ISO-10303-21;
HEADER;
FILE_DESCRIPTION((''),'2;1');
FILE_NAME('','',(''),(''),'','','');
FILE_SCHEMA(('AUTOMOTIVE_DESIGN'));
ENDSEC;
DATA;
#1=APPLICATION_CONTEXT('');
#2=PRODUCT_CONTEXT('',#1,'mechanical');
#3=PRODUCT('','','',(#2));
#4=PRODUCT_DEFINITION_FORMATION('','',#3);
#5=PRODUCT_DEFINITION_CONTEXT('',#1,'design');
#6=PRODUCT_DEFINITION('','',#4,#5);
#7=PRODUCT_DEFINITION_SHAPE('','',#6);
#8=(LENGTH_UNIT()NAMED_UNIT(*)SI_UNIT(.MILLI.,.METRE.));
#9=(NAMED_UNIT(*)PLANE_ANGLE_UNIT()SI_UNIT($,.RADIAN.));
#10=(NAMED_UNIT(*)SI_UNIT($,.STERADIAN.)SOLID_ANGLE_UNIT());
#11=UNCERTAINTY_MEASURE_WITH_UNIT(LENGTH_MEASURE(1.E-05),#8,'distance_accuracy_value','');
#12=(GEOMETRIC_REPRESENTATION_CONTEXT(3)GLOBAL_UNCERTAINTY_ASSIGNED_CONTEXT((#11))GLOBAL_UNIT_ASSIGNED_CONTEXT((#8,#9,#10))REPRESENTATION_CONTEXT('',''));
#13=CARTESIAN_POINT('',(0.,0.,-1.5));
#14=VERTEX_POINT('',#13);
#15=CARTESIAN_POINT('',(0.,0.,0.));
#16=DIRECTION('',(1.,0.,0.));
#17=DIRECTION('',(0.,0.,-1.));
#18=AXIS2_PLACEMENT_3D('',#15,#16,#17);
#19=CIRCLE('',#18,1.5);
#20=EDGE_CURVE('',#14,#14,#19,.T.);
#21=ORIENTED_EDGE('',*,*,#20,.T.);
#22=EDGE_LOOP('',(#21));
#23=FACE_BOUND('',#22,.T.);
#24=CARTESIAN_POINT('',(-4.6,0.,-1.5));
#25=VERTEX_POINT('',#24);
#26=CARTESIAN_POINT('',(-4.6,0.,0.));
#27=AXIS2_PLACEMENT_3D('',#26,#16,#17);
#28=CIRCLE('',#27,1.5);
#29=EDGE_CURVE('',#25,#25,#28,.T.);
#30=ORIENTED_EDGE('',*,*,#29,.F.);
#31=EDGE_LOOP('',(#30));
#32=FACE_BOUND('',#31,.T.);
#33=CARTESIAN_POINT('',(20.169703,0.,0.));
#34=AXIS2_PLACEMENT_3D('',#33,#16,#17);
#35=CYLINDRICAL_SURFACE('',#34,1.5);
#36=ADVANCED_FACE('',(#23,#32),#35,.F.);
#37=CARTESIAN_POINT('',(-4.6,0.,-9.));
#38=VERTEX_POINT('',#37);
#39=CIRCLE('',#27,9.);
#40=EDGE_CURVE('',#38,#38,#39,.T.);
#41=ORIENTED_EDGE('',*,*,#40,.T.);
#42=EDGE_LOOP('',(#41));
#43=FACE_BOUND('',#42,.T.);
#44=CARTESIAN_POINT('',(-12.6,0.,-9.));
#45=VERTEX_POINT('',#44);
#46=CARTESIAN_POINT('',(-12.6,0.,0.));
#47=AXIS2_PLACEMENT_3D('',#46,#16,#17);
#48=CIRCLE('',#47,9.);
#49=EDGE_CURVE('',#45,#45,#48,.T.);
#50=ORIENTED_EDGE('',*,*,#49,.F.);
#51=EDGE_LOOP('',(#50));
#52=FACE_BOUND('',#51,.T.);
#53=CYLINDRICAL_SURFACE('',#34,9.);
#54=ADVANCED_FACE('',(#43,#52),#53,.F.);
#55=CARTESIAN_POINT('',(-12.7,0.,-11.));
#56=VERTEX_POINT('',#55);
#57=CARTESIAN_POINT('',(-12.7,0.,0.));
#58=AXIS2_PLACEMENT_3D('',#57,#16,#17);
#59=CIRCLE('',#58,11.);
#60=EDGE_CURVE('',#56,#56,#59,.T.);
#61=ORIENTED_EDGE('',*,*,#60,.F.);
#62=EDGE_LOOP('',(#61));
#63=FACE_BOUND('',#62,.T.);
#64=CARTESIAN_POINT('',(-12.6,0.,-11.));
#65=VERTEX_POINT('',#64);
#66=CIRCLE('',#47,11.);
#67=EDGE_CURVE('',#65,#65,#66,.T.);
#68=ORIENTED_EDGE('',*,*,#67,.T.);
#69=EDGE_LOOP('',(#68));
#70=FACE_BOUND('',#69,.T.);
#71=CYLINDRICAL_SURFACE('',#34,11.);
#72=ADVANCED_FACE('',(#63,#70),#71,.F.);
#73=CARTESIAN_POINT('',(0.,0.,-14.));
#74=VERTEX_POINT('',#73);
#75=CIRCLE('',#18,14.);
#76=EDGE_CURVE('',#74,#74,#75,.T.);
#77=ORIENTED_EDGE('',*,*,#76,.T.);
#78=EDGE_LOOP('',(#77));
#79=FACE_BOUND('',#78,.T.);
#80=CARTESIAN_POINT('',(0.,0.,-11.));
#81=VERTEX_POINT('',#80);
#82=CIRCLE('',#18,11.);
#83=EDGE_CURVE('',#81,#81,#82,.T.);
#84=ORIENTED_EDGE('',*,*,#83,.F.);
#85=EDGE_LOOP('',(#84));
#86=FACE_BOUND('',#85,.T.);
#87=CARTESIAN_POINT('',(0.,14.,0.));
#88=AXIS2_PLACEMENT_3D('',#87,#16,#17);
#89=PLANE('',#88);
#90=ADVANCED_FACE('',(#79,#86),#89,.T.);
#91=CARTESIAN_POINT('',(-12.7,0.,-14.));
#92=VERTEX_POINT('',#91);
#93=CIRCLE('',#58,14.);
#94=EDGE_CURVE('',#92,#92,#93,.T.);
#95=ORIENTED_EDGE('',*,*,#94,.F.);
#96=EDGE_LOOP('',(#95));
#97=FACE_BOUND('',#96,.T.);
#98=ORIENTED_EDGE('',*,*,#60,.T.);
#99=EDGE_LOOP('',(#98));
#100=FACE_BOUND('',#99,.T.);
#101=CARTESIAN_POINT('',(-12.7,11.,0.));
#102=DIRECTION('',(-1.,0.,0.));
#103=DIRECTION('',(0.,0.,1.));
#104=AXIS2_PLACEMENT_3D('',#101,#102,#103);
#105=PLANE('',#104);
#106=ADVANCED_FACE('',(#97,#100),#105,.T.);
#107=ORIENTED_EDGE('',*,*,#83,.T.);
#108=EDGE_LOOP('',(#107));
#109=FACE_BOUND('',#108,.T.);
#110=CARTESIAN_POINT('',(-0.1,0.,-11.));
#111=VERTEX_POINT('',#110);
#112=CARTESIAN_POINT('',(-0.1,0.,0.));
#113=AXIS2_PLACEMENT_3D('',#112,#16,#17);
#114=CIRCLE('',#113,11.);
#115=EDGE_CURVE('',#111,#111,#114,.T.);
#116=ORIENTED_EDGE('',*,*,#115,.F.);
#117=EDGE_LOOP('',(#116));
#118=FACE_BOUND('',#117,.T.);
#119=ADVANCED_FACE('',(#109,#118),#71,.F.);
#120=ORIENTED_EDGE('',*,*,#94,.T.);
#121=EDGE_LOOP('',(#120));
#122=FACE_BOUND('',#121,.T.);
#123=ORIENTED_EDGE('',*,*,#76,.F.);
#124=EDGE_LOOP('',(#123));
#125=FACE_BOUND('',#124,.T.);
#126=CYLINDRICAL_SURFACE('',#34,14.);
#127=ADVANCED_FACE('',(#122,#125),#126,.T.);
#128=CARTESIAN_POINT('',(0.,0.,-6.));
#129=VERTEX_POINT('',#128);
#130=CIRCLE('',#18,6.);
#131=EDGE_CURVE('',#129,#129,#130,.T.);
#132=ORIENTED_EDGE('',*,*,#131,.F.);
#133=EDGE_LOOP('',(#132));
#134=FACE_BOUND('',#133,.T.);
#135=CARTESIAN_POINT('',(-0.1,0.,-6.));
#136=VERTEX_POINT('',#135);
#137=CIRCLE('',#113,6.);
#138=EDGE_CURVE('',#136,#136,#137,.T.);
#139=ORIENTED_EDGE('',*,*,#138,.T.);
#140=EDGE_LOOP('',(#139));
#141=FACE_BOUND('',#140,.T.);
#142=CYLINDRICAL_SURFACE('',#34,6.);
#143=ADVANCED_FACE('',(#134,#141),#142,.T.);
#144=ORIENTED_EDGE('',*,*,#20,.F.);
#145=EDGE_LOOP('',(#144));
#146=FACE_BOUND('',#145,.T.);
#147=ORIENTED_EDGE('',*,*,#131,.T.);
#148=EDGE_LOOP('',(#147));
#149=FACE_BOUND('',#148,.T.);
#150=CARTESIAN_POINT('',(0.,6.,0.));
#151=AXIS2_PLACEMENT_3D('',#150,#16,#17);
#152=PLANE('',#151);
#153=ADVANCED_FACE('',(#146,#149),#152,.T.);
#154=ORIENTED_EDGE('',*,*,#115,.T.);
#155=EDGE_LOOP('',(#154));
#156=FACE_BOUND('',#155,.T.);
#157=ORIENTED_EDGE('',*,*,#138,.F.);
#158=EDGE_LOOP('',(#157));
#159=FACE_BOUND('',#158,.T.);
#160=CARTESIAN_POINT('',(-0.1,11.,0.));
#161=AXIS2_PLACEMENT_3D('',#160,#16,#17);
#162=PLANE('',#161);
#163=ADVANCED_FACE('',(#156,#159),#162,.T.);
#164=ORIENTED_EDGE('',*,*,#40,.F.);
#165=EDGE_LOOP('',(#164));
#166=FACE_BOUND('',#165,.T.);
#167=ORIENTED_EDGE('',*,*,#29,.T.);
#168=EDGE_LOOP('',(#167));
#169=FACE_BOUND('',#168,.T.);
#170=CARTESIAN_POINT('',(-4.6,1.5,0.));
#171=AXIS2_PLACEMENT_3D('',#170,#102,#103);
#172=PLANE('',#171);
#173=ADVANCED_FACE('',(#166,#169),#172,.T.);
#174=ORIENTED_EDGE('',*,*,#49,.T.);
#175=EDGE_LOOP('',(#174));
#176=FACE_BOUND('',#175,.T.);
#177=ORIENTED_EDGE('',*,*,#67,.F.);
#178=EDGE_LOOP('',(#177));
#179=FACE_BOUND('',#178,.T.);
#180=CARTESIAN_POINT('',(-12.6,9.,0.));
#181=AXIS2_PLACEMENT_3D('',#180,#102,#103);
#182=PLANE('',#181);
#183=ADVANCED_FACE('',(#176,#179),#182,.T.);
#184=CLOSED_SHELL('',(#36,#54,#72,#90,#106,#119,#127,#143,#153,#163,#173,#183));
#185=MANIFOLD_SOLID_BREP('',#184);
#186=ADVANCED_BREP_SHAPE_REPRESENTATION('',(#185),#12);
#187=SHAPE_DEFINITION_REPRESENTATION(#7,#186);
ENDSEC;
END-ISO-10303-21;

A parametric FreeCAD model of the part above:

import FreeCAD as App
import Part
import Sketcher

V = App.Vector


def add_polygon(sketch, points):
    """Adds a closed chain of lines whose ends are joined by coincident constraints."""
    first, n = sketch.GeometryCount, len(points)
    for a, b in zip(points, points[1:] + points[:1]):
        sketch.addGeometry(Part.LineSegment(App.Vector(*a, 0), App.Vector(*b, 0)), False)
    for i in range(n):
        sketch.addConstraint(Sketcher.Constraint("Coincident", first + i, 2, first + (i + 1) % n, 1))

doc = App.newDocument("Part")
body = doc.addObject("PartDesign::Body", "Body")

# Sketch on XY plane
sketch1 = body.newObject("Sketcher::SketchObject", "Sketch")
sketch1.AttachmentSupport = (doc.getObject("XY_Plane"), [""])
sketch1.MapMode = "FlatFace"
add_polygon(sketch1, [(0, 14), (-12.7, 14), (-12.7, 11), (-12.6, 11), (-12.6, 9), (-4.6, 9), (-4.6, 1.5), (0, 1.5), (0, 6), (-0.1, 6), (-0.1, 11), (0, 11)])  # lines 0-11
sketch1.addConstraint([
    Sketcher.Constraint("Horizontal", 0),
    Sketcher.Constraint("Vertical", 1),
    Sketcher.Constraint("Horizontal", 2),
    Sketcher.Constraint("Vertical", 3),
    Sketcher.Constraint("Horizontal", 4),
    Sketcher.Constraint("Vertical", 5),
    Sketcher.Constraint("Horizontal", 6),
    Sketcher.Constraint("Vertical", 7),
    Sketcher.Constraint("Horizontal", 8),
    Sketcher.Constraint("Vertical", 9),
    Sketcher.Constraint("Horizontal", 10),
    Sketcher.Constraint("Vertical", 11),
    Sketcher.Constraint("PointOnObject", 6, 2, -2),
    Sketcher.Constraint("PointOnObject", 10, 2, -2),
    Sketcher.Constraint("Horizontal", 2, 2, 9, 2),
    Sketcher.Constraint("Equal", 2, 8),
    Sketcher.Constraint("DistanceX", 4, 1, 4, 2, 8.0),
    Sketcher.Constraint("DistanceY", 1, 2, 1, 1, 3.0),
    Sketcher.Constraint("DistanceY", 3, 2, 3, 1, 2.0),
    Sketcher.Constraint("DistanceY", 9, 1, 9, 2, 5.0),
    Sketcher.Constraint("DistanceX", 0, 2, 0, 1, 12.7),
    Sketcher.Constraint("DistanceX", 2, 1, 2, 2, 0.1),
    Sketcher.Constraint("DistanceY", 5, 2, 5, 1, 7.5),
    Sketcher.Constraint("DistanceY", -1, 1, 0, 2, 14.0),
])
revolution = body.newObject("PartDesign::Revolution", "Revolution")
revolution.Profile = sketch1
revolution.ReferenceAxis = (sketch1, ["H_Axis"])
revolution.Angle = 360

doc.recompute()
